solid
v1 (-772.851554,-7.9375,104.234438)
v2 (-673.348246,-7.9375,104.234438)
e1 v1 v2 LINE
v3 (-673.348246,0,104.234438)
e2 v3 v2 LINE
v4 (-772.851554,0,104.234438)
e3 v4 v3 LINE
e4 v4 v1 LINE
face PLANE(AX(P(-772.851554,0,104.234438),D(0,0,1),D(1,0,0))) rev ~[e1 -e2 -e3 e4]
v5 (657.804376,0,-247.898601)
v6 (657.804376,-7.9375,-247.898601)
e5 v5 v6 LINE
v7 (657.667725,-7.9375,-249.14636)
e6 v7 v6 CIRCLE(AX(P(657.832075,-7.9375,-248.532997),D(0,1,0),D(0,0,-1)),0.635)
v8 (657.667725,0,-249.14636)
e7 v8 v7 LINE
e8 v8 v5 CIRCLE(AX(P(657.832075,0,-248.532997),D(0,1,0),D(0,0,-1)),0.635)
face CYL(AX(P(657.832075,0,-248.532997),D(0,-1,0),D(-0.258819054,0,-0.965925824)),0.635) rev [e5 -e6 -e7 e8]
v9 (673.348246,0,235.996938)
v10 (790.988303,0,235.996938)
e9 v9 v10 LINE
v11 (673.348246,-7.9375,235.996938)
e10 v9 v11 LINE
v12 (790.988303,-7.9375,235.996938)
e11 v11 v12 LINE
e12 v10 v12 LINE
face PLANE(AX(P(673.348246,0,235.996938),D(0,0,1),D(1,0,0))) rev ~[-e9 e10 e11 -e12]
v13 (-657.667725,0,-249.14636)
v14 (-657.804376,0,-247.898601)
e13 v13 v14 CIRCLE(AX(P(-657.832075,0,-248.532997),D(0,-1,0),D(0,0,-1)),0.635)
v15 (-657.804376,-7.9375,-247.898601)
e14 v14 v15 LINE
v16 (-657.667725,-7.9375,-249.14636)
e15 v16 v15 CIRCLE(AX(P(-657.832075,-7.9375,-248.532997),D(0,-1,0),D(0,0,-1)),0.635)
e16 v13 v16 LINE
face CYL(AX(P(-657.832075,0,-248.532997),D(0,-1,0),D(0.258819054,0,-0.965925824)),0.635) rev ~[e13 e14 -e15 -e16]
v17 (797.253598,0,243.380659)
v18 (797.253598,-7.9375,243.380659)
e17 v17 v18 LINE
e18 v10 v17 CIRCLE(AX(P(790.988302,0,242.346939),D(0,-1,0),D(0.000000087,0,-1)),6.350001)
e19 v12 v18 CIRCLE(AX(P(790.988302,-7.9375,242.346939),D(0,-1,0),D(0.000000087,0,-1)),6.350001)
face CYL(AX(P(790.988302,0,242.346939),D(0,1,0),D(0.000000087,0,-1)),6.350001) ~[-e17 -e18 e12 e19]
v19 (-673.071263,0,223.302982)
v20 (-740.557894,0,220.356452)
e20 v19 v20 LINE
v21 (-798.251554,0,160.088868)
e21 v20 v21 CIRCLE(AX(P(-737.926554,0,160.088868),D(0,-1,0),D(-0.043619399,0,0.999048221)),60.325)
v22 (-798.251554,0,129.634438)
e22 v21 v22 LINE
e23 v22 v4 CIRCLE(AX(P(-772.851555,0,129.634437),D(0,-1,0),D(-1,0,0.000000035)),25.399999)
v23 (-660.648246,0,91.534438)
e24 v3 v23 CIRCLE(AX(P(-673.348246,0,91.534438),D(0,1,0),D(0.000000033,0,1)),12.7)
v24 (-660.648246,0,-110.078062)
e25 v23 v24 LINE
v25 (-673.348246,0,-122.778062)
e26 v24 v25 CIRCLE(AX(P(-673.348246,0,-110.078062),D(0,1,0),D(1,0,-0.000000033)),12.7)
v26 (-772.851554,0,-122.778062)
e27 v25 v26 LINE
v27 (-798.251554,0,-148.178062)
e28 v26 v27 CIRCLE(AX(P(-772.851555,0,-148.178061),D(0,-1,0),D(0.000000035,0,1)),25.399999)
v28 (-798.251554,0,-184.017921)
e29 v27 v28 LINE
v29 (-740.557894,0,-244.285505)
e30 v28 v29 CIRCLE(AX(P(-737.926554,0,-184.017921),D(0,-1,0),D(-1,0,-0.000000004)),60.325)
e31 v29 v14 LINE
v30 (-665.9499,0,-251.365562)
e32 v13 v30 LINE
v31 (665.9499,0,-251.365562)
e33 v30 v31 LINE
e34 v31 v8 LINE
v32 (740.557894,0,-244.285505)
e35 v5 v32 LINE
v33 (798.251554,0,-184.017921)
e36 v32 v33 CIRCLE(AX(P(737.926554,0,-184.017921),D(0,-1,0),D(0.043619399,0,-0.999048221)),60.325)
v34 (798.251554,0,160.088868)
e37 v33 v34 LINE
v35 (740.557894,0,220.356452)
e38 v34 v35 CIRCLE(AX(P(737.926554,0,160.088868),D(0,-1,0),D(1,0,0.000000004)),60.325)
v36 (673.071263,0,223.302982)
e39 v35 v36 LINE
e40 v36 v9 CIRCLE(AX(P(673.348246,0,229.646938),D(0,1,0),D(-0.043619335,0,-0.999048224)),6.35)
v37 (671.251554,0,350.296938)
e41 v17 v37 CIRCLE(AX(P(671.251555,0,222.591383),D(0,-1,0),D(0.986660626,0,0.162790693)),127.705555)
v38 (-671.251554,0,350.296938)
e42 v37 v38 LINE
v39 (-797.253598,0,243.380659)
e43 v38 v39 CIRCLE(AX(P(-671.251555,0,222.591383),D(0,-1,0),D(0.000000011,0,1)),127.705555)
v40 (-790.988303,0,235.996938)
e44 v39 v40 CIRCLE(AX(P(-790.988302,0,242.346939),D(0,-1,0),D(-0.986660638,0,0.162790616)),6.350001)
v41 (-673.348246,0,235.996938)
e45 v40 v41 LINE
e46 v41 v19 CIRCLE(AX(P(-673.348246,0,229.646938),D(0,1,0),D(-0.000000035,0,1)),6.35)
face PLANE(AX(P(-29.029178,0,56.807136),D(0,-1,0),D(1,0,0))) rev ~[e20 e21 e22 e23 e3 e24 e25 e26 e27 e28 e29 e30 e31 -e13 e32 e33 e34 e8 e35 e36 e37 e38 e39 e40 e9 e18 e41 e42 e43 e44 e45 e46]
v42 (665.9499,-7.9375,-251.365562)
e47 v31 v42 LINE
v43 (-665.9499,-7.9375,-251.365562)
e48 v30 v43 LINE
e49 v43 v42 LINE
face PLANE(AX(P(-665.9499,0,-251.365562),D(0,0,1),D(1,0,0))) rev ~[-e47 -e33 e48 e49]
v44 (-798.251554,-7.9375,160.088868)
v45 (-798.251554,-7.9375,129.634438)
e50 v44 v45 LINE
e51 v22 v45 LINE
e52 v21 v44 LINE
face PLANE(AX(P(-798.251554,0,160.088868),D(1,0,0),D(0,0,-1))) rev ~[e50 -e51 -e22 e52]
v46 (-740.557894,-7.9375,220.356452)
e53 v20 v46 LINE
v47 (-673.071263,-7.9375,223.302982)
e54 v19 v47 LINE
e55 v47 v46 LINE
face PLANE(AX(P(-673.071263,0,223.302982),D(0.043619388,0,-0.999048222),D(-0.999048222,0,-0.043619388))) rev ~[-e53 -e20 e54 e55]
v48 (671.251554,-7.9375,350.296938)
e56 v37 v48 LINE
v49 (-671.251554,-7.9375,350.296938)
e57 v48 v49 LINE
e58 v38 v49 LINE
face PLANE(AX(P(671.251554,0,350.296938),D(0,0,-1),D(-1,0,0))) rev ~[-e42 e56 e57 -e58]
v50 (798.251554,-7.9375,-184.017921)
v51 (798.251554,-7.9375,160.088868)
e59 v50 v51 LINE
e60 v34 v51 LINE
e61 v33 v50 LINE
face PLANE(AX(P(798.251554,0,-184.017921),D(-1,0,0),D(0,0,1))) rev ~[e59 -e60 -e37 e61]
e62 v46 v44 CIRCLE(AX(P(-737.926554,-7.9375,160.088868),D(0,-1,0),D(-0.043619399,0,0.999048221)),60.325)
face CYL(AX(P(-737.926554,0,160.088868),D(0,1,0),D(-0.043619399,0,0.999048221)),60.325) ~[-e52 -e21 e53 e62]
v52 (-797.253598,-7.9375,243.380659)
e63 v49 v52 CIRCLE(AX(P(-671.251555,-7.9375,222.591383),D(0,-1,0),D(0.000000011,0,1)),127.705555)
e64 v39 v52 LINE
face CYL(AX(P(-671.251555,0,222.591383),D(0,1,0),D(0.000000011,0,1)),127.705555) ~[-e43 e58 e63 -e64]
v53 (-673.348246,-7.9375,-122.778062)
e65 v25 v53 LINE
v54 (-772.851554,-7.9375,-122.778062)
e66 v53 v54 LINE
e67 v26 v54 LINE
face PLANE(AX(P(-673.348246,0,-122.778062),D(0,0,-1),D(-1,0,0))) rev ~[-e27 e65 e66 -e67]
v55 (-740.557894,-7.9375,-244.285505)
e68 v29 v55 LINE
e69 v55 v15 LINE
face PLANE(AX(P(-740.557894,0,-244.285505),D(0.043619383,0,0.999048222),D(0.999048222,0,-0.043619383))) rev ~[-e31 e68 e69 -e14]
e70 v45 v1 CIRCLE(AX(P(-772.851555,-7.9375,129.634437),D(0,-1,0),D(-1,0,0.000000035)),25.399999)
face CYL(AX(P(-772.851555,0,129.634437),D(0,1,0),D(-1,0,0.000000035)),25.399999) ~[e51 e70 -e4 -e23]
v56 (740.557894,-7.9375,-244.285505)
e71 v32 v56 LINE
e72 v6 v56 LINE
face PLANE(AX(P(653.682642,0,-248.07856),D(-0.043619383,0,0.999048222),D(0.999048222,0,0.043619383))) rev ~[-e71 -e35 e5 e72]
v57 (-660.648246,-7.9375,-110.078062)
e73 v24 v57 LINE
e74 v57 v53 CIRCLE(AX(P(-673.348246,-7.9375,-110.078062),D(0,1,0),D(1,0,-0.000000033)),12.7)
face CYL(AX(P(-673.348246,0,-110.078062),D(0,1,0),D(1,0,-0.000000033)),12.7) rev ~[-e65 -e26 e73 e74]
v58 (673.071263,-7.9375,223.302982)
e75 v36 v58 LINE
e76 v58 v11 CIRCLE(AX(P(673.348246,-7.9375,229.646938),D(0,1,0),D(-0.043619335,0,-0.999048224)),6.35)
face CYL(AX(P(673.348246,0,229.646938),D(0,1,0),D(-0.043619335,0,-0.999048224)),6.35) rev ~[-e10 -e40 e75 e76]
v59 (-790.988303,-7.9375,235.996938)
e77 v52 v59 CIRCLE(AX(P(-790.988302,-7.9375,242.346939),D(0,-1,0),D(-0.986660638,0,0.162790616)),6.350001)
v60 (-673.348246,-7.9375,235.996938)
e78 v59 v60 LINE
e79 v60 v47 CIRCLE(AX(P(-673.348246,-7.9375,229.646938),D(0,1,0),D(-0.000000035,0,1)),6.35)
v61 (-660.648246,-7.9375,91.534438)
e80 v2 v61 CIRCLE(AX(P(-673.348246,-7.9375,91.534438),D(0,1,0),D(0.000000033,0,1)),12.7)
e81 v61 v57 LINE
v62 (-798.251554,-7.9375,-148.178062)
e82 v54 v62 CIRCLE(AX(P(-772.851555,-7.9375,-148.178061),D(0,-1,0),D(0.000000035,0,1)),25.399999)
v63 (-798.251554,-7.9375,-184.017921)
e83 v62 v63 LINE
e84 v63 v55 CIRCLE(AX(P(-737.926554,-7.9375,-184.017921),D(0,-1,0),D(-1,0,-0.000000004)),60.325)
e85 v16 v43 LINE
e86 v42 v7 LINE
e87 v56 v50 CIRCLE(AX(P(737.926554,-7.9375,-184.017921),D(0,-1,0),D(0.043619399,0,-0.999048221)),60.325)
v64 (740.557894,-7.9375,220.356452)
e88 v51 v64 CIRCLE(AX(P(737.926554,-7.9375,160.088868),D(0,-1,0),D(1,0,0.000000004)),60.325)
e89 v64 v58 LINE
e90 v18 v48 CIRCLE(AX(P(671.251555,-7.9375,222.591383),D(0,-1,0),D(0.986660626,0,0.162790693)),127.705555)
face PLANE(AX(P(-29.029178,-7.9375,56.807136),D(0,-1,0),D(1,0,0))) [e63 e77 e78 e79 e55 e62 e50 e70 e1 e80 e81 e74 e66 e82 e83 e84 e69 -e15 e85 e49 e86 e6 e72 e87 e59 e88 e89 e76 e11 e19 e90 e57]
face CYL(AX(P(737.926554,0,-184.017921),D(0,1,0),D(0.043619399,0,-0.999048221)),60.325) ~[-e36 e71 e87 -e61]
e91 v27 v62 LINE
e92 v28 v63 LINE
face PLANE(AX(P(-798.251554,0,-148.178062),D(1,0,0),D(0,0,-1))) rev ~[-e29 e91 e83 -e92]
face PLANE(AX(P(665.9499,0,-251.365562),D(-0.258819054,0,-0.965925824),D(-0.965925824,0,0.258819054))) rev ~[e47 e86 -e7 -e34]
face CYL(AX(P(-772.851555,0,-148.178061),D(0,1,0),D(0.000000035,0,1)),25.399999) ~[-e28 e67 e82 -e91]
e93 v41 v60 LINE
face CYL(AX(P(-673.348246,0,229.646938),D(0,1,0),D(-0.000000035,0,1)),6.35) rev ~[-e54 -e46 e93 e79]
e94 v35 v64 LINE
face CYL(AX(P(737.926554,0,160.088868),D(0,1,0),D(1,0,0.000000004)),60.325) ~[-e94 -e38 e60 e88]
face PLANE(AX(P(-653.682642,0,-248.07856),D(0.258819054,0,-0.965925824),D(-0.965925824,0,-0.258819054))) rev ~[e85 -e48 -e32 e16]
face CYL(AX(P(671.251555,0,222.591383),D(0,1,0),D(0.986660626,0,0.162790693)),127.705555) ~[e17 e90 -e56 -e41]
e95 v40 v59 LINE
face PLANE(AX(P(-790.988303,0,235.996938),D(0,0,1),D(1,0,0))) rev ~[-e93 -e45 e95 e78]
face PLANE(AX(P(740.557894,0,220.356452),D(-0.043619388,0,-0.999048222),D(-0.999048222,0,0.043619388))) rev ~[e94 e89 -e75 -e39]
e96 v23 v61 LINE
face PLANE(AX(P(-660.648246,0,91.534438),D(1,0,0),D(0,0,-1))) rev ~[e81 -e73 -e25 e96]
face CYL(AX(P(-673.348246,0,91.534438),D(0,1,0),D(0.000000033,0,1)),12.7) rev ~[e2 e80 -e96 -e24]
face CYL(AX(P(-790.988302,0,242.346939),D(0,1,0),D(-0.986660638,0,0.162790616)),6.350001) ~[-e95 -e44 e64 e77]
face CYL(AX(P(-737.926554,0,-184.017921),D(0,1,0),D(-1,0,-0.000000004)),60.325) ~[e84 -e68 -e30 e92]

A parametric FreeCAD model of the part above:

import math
import FreeCAD as App
import Part
import Sketcher

V = App.Vector
Q = App.Units.Quantity


def edges_at(feature, points):
    """Names of the edges that pass closest to the given points."""
    edges = feature.Shape.Edges
    near = lambda p: min(range(len(edges)), key=lambda i: edges[i].distToShape(Part.Vertex(*p))[0])
    return sorted({f"Edge{near(p) + 1}" for p in points})

doc = App.newDocument("Part")
params = doc.addObject("Spreadsheet::Sheet", "Params")
for row, (alias, value) in enumerate([
    ("sketch1_radius", "1 in"),
    ("sketch1_radius2", "0.5 in"),
    ("sketch1_radius3", "0.25 in"),
    ("sketch1_radius4", "2.375 in"),
    ("sketch1_length", "0.5 in"),
    ("pad1_length", "0.3125 in"),
    ("fillet_radius", "0.025 in"),
], start=1):
    params.set(f"A{row}", alias)
    params.set(f"B{row}", "=" + value)
    params.setAlias(f"B{row}", alias)

body = doc.addObject("PartDesign::Body", "Body")

sketch1 = body.newObject("Sketcher::SketchObject", "Sketch")
sketch1.AttachmentSupport = (doc.getObject("XZ_Plane"), [""])
sketch1.MapMode = "FlatFace"
sketch1.addGeometry(Part.LineSegment(V(-654, -248, 0), V(-666, -251, 0)), False)
sketch1.addGeometry(Part.LineSegment(V(-666, -251, 0), V(666, -251, 0)), False)
sketch1.addGeometry(Part.LineSegment(V(666, -251, 0), V(654, -248, 0)), False)
sketch1.addGeometry(Part.LineSegment(V(654, -248, 0), V(741, -244, 0)), False)
sketch1.addGeometry(Part.ArcOfCircle(Part.Circle(V(738, -184, 0), V(0, 0, 1), 60), math.radians(-87), math.radians(0)), False)
sketch1.addGeometry(Part.LineSegment(V(798, -184, 0), V(798, 160, 0)), False)
sketch1.addGeometry(Part.ArcOfCircle(Part.Circle(V(738, 160, 0), V(0, 0, 1), 60), math.radians(0), math.radians(87)), False)
sketch1.addGeometry(Part.LineSegment(V(741, 220, 0), V(673, 223, 0)), False)
sketch1.addGeometry(Part.ArcOfCircle(Part.Circle(V(673, 230, 0), V(0, 0, 1), 6), math.radians(90), math.radians(268)), False)
sketch1.addGeometry(Part.LineSegment(V(673, 236, 0), V(791, 236, 0)), False)
sketch1.addGeometry(Part.ArcOfCircle(Part.Circle(V(791, 242, 0), V(0, 0, 1), 6), math.radians(-90), math.radians(9)), False)
sketch1.addGeometry(Part.ArcOfCircle(Part.Circle(V(671, 223, 0), V(0, 0, 1), 128), math.radians(9), math.radians(90)), False)
sketch1.addGeometry(Part.LineSegment(V(671, 350, 0), V(-671, 350, 0)), False)
sketch1.addGeometry(Part.ArcOfCircle(Part.Circle(V(-671, 223, 0), V(0, 0, 1), 128), math.radians(90), math.radians(171)), False)
sketch1.addGeometry(Part.ArcOfCircle(Part.Circle(V(-791, 242, 0), V(0, 0, 1), 6), math.radians(171), math.radians(270)), False)
sketch1.addGeometry(Part.LineSegment(V(-791, 236, 0), V(-673, 236, 0)), False)
sketch1.addGeometry(Part.ArcOfCircle(Part.Circle(V(-673, 230, 0), V(0, 0, 1), 6), math.radians(-88), math.radians(90)), False)
sketch1.addGeometry(Part.LineSegment(V(-673, 223, 0), V(-741, 220, 0)), False)
sketch1.addGeometry(Part.ArcOfCircle(Part.Circle(V(-738, 160, 0), V(0, 0, 1), 60), math.radians(93), math.radians(180)), False)
sketch1.addGeometry(Part.LineSegment(V(-798, 160, 0), V(-798, 130, 0)), False)
sketch1.addGeometry(Part.ArcOfCircle(Part.Circle(V(-773, 130, 0), V(0, 0, 1), 25), math.radians(180), math.radians(270)), False)
sketch1.addGeometry(Part.LineSegment(V(-773, 104, 0), V(-673, 104, 0)), False)
sketch1.addGeometry(Part.ArcOfCircle(Part.Circle(V(-673, 92, 0), V(0, 0, 1), 13), math.radians(0), math.radians(90)), False)
sketch1.addGeometry(Part.LineSegment(V(-661, 92, 0), V(-661, -110, 0)), False)
sketch1.addGeometry(Part.ArcOfCircle(Part.Circle(V(-673, -110, 0), V(0, 0, 1), 13), math.radians(-90), math.radians(0)), False)
sketch1.addGeometry(Part.LineSegment(V(-673, -123, 0), V(-773, -123, 0)), False)
sketch1.addGeometry(Part.ArcOfCircle(Part.Circle(V(-773, -148, 0), V(0, 0, 1), 25), math.radians(90), math.radians(180)), False)
sketch1.addGeometry(Part.LineSegment(V(-798, -148, 0), V(-798, -184, 0)), False)
sketch1.addGeometry(Part.ArcOfCircle(Part.Circle(V(-738, -184, 0), V(0, 0, 1), 60), math.radians(-180), math.radians(-93)), False)
sketch1.addGeometry(Part.LineSegment(V(-741, -244, 0), V(-654, -248, 0)), False)
sketch1.addConstraint(Sketcher.Constraint("Coincident", 0, 2, 1, 1))
sketch1.addConstraint(Sketcher.Constraint("Coincident", 1, 2, 2, 1))
sketch1.addConstraint(Sketcher.Constraint("Coincident", 2, 2, 3, 1))
sketch1.addConstraint(Sketcher.Constraint("Tangent", 3, 2, 4, 1))
sketch1.addConstraint(Sketcher.Constraint("Tangent", 4, 2, 5, 1))
sketch1.addConstraint(Sketcher.Constraint("Tangent", 5, 2, 6, 1))
sketch1.addConstraint(Sketcher.Constraint("Tangent", 6, 2, 7, 1))
sketch1.addConstraint(Sketcher.Constraint("Tangent", 7, 2, 8, 2))
sketch1.addConstraint(Sketcher.Constraint("Tangent", 8, 1, 9, 1))
sketch1.addConstraint(Sketcher.Constraint("Tangent", 9, 2, 10, 1))
sketch1.addConstraint(Sketcher.Constraint("Tangent", 10, 2, 11, 1))
sketch1.addConstraint(Sketcher.Constraint("Tangent", 11, 2, 12, 1))
sketch1.addConstraint(Sketcher.Constraint("Tangent", 12, 2, 13, 1))
sketch1.addConstraint(Sketcher.Constraint("Tangent", 13, 2, 14, 1))
sketch1.addConstraint(Sketcher.Constraint("Tangent", 14, 2, 15, 1))
sketch1.addConstraint(Sketcher.Constraint("Tangent", 15, 2, 16, 2))
sketch1.addConstraint(Sketcher.Constraint("Tangent", 16, 1, 17, 1))
sketch1.addConstraint(Sketcher.Constraint("Tangent", 17, 2, 18, 1))
sketch1.addConstraint(Sketcher.Constraint("Tangent", 18, 2, 19, 1))
sketch1.addConstraint(Sketcher.Constraint("Tangent", 19, 2, 20, 1))
sketch1.addConstraint(Sketcher.Constraint("Tangent", 20, 2, 21, 1))
sketch1.addConstraint(Sketcher.Constraint("Tangent", 21, 2, 22, 2))
sketch1.addConstraint(Sketcher.Constraint("Tangent", 22, 1, 23, 1))
sketch1.addConstraint(Sketcher.Constraint("Tangent", 23, 2, 24, 2))
sketch1.addConstraint(Sketcher.Constraint("Tangent", 24, 1, 25, 1))
sketch1.addConstraint(Sketcher.Constraint("Tangent", 25, 2, 26, 1))
sketch1.addConstraint(Sketcher.Constraint("Tangent", 26, 2, 27, 1))
sketch1.addConstraint(Sketcher.Constraint("Tangent", 27, 2, 28, 1))
sketch1.addConstraint(Sketcher.Constraint("Tangent", 28, 2, 29, 1))
sketch1.addConstraint(Sketcher.Constraint("Coincident", 29, 2, 0, 1))
sketch1.addConstraint(Sketcher.Constraint("Horizontal", 1))
sketch1.addConstraint(Sketcher.Constraint("Vertical", 5))
sketch1.addConstraint(Sketcher.Constraint("Horizontal", 9))
sketch1.addConstraint(Sketcher.Constraint("Horizontal", 12))
sketch1.addConstraint(Sketcher.Constraint("Horizontal", 15))
sketch1.addConstraint(Sketcher.Constraint("Vertical", 19))
sketch1.addConstraint(Sketcher.Constraint("Horizontal", 21))
sketch1.addConstraint(Sketcher.Constraint("Vertical", 23))
sketch1.addConstraint(Sketcher.Constraint("Horizontal", 25))
sketch1.addConstraint(Sketcher.Constraint("Vertical", 27))
sketch1.addConstraint(Sketcher.Constraint("Equal", 4, 6))
sketch1.addConstraint(Sketcher.Constraint("Equal", 8, 10))
sketch1.addConstraint(Sketcher.Constraint("Equal", 11, 13))
sketch1.addConstraint(Sketcher.Constraint("Equal", 10, 14))
sketch1.addConstraint(Sketcher.Constraint("Equal", 14, 16))
sketch1.addConstraint(Sketcher.Constraint("Equal", 6, 18))
sketch1.addConstraint(Sketcher.Constraint("Equal", 22, 24))
sketch1.addConstraint(Sketcher.Constraint("Equal", 20, 26))
sketch1.addConstraint(Sketcher.Constraint("Equal", 18, 28))
sketch1.addConstraint(Sketcher.Constraint("Symmetric", 10, 3, 14, 3, -2))
sketch1.addConstraint(Sketcher.Constraint("Symmetric", 6, 3, 18, 3, -2))
sketch1.addConstraint(Sketcher.Constraint("Symmetric", 4, 3, 28, 3, -2))
sketch1.addConstraint(Sketcher.Constraint("Symmetric", 2, 2, 29, 2, -2))
sketch1.addConstraint(Sketcher.Constraint("Parallel", 3, 17))
sketch1.addConstraint(Sketcher.Constraint("Parallel", 7, 29))
sketch1.addConstraint(Sketcher.Constraint("Vertical", 16, 3, 22, 3))
sketch1.addConstraint(Sketcher.Constraint("Equal", 0, 2))
sketch1.addConstraint(Sketcher.Constraint("Radius", 20, Q("1 in")))
sketch1.addConstraint(Sketcher.Constraint("Radius", 22, Q("0.5 in")))
sketch1.addConstraint(Sketcher.Constraint("Radius", 8, Q("0.25 in")))
sketch1.addConstraint(Sketcher.Constraint("Angle", 0, Q("-164.999999 deg")))
sketch1.addConstraint(Sketcher.Constraint("Radius", 4, Q("2.375 in")))
sketch1.addConstraint(Sketcher.Constraint("DistanceX", 20, 3, 13, 3, Q("4 in")))
sketch1.addConstraint(Sketcher.Constraint("DistanceY", 0, 2, 20, 3, Q("15 in")))
sketch1.addConstraint(Sketcher.Constraint("Distance", 0, Q("0.5 in")))
sketch1.addConstraint(Sketcher.Constraint("Angle", 3, Q("2.5 deg")))
sketch1.addConstraint(Sketcher.Constraint("DistanceY", 8, 1, 11, 2, Q("4.5 in")))
sketch1.addConstraint(Sketcher.Constraint("DistanceX", 1, 1, 1, 2, Q("52.437 in")))
sketch1.addConstraint(Sketcher.Constraint("DistanceY", 23, 2, 23, 1, Q("7.9375 in")))
sketch1.addConstraint(Sketcher.Constraint("DistanceX", 13, 3, 8, 3, Q("52.937 in")))
sketch1.addConstraint(Sketcher.Constraint("DistanceY", 20, 3, 14, 3, Q("4.4375001 in")))
sketch1.addConstraint(Sketcher.Constraint("DistanceY", 4, 3, -1, 1, Q("7.2448 in")))
sketch1.addConstraint(Sketcher.Constraint("Radius", 11, 127.705555))
sketch1.addConstraint(Sketcher.Constraint("DistanceX", 12, 2, 12, 1, 1342.503108))
sketch1.setExpression("Constraints[57]", "Params.sketch1_radius")
sketch1.setExpression("Constraints[58]", "Params.sketch1_radius2")
sketch1.setExpression("Constraints[59]", "Params.sketch1_radius3")
sketch1.setExpression("Constraints[61]", "Params.sketch1_radius4")
sketch1.setExpression("Constraints[64]", "Params.sketch1_length")
pad1 = body.newObject("PartDesign::Pad", "Pad")
pad1.Profile = sketch1
pad1.setExpression("Length", "Params.pad1_length")
doc.recompute()

fillet = body.newObject("PartDesign::Fillet", "Fillet")
fillet.Base = (pad1, edges_at(pad1, [(-653.683, -3.969, -248.079), (653.683, -3.969, -248.079)]))
fillet.setExpression("Radius", "Params.fillet_radius")

doc.recompute()
